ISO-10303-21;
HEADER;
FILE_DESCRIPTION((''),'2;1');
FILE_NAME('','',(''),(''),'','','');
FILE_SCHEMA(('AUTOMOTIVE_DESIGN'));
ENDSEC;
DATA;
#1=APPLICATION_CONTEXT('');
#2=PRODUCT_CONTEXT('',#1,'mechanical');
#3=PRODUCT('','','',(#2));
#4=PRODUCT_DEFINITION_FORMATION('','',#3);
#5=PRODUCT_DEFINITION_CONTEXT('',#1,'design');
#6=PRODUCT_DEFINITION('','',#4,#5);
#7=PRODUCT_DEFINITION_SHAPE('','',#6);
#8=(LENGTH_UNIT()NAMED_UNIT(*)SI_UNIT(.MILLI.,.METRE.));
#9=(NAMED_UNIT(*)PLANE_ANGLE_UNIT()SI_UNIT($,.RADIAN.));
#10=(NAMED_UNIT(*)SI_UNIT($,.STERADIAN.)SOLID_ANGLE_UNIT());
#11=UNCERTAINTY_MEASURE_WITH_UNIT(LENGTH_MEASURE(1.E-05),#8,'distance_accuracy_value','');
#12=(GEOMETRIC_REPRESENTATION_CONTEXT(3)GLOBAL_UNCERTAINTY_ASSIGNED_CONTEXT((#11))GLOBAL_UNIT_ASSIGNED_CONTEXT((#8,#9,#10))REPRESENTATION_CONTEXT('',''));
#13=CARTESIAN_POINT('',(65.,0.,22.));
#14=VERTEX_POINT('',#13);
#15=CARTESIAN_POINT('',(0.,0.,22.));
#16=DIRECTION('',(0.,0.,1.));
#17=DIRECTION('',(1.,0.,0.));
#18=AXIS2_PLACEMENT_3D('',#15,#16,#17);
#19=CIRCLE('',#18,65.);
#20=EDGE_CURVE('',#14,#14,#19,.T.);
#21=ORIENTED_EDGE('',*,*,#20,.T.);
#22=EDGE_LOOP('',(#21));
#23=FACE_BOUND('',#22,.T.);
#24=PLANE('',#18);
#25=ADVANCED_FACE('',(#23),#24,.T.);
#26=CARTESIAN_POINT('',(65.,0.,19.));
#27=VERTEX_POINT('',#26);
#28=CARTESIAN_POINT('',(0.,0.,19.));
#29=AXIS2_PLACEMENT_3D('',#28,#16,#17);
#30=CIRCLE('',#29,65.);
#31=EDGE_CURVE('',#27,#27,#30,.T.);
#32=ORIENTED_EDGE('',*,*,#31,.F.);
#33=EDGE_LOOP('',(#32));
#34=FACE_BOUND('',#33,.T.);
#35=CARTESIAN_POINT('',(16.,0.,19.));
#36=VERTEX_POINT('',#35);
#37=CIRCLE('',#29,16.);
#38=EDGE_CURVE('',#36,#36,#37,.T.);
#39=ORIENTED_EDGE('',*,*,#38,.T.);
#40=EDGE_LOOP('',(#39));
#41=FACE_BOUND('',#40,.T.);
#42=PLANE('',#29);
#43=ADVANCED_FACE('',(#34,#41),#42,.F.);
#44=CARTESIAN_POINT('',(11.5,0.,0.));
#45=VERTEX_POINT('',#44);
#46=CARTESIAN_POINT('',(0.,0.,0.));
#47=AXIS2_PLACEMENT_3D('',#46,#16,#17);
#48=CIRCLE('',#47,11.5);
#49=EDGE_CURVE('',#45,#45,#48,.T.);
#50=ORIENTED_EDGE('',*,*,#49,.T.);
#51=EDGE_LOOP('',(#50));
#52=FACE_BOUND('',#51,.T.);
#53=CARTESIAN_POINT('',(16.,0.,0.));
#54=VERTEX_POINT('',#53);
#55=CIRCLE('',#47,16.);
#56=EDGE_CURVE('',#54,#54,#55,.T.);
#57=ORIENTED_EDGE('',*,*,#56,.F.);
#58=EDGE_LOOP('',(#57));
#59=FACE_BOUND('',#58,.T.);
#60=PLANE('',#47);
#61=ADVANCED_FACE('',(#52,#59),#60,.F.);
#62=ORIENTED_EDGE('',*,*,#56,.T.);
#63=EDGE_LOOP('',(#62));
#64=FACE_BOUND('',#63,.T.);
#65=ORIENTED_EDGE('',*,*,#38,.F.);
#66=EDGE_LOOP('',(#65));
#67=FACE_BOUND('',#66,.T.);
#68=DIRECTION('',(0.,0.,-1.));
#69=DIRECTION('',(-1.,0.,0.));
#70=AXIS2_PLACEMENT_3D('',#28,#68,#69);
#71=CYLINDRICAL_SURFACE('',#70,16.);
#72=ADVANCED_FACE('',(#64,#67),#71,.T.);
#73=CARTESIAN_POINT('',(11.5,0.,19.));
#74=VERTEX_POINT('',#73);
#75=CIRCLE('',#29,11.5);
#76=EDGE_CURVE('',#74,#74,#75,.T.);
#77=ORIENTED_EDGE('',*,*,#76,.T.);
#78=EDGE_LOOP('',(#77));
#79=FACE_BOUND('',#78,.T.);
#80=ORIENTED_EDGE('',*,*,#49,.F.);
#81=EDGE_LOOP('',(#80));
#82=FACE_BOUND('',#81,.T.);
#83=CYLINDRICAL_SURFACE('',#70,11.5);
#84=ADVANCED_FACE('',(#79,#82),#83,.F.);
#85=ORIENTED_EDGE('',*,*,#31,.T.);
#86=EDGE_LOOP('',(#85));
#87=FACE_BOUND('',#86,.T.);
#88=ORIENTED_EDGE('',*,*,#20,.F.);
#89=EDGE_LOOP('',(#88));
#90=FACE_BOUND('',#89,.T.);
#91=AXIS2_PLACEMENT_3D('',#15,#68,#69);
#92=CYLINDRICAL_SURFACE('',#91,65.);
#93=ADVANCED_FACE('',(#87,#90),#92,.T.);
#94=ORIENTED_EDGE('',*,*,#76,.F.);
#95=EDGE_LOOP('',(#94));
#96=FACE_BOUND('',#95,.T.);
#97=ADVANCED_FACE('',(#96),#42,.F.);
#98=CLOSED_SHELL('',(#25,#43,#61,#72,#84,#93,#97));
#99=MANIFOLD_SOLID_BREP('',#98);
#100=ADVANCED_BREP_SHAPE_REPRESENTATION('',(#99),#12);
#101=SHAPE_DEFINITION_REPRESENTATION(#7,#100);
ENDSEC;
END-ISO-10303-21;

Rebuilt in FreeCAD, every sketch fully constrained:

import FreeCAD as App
import Part
import Sketcher
from FreeCAD import Vector
Q = App.Units.Quantity

doc = App.newDocument("Part")
body = doc.addObject("PartDesign::Body", "Body")

# Sketch on XY plane
sketch1 = doc.addObject("Sketcher::SketchObject", "Sketch")
body.addObject(sketch1)
sketch1.AttachmentSupport = (doc.XY_Plane, [""])
sketch1.MapMode = "FlatFace"
sketch1.addGeometry(Part.Circle(Vector(0, 0, 0), Vector(0, 0, 1), 16), False)
sketch1.addGeometry(Part.Circle(Vector(0, 0, 0), Vector(0, 0, 1), 12), False)
sketch1.addConstraint(Sketcher.Constraint("Coincident", 0, 3, -1, 1))
sketch1.addConstraint(Sketcher.Constraint("Coincident", 1, 3, -1, 1))
sketch1.addConstraint(Sketcher.Constraint("Diameter", 0, Q("32 mm")))
sketch1.addConstraint(Sketcher.Constraint("Diameter", 1, Q("23 mm")))
pad1 = doc.addObject("PartDesign::Pad", "Pad")
body.addObject(pad1)
pad1.Profile = sketch1
pad1.Length = 19

# Sketch on XY plane
sketch2 = doc.addObject("Sketcher::SketchObject", "Sketch001")
body.addObject(sketch2)
sketch2.AttachmentSupport = (doc.XY_Plane, [""])
sketch2.MapMode = "FlatFace"
sketch2.AttachmentOffset = App.Placement(Vector(0, 0, 19), App.Rotation())
sketch2.addGeometry(Part.Circle(Vector(0, 0, 0), Vector(0, 0, 1), 65), False)
sketch2.addConstraint(Sketcher.Constraint("Coincident", 0, 3, -1, 1))
sketch2.addConstraint(Sketcher.Constraint("Diameter", 0, Q("130 mm")))
pad2 = doc.addObject("PartDesign::Pad", "Pad001")
body.addObject(pad2)
pad2.Profile = sketch2
pad2.Length = 3

doc.recompute()
